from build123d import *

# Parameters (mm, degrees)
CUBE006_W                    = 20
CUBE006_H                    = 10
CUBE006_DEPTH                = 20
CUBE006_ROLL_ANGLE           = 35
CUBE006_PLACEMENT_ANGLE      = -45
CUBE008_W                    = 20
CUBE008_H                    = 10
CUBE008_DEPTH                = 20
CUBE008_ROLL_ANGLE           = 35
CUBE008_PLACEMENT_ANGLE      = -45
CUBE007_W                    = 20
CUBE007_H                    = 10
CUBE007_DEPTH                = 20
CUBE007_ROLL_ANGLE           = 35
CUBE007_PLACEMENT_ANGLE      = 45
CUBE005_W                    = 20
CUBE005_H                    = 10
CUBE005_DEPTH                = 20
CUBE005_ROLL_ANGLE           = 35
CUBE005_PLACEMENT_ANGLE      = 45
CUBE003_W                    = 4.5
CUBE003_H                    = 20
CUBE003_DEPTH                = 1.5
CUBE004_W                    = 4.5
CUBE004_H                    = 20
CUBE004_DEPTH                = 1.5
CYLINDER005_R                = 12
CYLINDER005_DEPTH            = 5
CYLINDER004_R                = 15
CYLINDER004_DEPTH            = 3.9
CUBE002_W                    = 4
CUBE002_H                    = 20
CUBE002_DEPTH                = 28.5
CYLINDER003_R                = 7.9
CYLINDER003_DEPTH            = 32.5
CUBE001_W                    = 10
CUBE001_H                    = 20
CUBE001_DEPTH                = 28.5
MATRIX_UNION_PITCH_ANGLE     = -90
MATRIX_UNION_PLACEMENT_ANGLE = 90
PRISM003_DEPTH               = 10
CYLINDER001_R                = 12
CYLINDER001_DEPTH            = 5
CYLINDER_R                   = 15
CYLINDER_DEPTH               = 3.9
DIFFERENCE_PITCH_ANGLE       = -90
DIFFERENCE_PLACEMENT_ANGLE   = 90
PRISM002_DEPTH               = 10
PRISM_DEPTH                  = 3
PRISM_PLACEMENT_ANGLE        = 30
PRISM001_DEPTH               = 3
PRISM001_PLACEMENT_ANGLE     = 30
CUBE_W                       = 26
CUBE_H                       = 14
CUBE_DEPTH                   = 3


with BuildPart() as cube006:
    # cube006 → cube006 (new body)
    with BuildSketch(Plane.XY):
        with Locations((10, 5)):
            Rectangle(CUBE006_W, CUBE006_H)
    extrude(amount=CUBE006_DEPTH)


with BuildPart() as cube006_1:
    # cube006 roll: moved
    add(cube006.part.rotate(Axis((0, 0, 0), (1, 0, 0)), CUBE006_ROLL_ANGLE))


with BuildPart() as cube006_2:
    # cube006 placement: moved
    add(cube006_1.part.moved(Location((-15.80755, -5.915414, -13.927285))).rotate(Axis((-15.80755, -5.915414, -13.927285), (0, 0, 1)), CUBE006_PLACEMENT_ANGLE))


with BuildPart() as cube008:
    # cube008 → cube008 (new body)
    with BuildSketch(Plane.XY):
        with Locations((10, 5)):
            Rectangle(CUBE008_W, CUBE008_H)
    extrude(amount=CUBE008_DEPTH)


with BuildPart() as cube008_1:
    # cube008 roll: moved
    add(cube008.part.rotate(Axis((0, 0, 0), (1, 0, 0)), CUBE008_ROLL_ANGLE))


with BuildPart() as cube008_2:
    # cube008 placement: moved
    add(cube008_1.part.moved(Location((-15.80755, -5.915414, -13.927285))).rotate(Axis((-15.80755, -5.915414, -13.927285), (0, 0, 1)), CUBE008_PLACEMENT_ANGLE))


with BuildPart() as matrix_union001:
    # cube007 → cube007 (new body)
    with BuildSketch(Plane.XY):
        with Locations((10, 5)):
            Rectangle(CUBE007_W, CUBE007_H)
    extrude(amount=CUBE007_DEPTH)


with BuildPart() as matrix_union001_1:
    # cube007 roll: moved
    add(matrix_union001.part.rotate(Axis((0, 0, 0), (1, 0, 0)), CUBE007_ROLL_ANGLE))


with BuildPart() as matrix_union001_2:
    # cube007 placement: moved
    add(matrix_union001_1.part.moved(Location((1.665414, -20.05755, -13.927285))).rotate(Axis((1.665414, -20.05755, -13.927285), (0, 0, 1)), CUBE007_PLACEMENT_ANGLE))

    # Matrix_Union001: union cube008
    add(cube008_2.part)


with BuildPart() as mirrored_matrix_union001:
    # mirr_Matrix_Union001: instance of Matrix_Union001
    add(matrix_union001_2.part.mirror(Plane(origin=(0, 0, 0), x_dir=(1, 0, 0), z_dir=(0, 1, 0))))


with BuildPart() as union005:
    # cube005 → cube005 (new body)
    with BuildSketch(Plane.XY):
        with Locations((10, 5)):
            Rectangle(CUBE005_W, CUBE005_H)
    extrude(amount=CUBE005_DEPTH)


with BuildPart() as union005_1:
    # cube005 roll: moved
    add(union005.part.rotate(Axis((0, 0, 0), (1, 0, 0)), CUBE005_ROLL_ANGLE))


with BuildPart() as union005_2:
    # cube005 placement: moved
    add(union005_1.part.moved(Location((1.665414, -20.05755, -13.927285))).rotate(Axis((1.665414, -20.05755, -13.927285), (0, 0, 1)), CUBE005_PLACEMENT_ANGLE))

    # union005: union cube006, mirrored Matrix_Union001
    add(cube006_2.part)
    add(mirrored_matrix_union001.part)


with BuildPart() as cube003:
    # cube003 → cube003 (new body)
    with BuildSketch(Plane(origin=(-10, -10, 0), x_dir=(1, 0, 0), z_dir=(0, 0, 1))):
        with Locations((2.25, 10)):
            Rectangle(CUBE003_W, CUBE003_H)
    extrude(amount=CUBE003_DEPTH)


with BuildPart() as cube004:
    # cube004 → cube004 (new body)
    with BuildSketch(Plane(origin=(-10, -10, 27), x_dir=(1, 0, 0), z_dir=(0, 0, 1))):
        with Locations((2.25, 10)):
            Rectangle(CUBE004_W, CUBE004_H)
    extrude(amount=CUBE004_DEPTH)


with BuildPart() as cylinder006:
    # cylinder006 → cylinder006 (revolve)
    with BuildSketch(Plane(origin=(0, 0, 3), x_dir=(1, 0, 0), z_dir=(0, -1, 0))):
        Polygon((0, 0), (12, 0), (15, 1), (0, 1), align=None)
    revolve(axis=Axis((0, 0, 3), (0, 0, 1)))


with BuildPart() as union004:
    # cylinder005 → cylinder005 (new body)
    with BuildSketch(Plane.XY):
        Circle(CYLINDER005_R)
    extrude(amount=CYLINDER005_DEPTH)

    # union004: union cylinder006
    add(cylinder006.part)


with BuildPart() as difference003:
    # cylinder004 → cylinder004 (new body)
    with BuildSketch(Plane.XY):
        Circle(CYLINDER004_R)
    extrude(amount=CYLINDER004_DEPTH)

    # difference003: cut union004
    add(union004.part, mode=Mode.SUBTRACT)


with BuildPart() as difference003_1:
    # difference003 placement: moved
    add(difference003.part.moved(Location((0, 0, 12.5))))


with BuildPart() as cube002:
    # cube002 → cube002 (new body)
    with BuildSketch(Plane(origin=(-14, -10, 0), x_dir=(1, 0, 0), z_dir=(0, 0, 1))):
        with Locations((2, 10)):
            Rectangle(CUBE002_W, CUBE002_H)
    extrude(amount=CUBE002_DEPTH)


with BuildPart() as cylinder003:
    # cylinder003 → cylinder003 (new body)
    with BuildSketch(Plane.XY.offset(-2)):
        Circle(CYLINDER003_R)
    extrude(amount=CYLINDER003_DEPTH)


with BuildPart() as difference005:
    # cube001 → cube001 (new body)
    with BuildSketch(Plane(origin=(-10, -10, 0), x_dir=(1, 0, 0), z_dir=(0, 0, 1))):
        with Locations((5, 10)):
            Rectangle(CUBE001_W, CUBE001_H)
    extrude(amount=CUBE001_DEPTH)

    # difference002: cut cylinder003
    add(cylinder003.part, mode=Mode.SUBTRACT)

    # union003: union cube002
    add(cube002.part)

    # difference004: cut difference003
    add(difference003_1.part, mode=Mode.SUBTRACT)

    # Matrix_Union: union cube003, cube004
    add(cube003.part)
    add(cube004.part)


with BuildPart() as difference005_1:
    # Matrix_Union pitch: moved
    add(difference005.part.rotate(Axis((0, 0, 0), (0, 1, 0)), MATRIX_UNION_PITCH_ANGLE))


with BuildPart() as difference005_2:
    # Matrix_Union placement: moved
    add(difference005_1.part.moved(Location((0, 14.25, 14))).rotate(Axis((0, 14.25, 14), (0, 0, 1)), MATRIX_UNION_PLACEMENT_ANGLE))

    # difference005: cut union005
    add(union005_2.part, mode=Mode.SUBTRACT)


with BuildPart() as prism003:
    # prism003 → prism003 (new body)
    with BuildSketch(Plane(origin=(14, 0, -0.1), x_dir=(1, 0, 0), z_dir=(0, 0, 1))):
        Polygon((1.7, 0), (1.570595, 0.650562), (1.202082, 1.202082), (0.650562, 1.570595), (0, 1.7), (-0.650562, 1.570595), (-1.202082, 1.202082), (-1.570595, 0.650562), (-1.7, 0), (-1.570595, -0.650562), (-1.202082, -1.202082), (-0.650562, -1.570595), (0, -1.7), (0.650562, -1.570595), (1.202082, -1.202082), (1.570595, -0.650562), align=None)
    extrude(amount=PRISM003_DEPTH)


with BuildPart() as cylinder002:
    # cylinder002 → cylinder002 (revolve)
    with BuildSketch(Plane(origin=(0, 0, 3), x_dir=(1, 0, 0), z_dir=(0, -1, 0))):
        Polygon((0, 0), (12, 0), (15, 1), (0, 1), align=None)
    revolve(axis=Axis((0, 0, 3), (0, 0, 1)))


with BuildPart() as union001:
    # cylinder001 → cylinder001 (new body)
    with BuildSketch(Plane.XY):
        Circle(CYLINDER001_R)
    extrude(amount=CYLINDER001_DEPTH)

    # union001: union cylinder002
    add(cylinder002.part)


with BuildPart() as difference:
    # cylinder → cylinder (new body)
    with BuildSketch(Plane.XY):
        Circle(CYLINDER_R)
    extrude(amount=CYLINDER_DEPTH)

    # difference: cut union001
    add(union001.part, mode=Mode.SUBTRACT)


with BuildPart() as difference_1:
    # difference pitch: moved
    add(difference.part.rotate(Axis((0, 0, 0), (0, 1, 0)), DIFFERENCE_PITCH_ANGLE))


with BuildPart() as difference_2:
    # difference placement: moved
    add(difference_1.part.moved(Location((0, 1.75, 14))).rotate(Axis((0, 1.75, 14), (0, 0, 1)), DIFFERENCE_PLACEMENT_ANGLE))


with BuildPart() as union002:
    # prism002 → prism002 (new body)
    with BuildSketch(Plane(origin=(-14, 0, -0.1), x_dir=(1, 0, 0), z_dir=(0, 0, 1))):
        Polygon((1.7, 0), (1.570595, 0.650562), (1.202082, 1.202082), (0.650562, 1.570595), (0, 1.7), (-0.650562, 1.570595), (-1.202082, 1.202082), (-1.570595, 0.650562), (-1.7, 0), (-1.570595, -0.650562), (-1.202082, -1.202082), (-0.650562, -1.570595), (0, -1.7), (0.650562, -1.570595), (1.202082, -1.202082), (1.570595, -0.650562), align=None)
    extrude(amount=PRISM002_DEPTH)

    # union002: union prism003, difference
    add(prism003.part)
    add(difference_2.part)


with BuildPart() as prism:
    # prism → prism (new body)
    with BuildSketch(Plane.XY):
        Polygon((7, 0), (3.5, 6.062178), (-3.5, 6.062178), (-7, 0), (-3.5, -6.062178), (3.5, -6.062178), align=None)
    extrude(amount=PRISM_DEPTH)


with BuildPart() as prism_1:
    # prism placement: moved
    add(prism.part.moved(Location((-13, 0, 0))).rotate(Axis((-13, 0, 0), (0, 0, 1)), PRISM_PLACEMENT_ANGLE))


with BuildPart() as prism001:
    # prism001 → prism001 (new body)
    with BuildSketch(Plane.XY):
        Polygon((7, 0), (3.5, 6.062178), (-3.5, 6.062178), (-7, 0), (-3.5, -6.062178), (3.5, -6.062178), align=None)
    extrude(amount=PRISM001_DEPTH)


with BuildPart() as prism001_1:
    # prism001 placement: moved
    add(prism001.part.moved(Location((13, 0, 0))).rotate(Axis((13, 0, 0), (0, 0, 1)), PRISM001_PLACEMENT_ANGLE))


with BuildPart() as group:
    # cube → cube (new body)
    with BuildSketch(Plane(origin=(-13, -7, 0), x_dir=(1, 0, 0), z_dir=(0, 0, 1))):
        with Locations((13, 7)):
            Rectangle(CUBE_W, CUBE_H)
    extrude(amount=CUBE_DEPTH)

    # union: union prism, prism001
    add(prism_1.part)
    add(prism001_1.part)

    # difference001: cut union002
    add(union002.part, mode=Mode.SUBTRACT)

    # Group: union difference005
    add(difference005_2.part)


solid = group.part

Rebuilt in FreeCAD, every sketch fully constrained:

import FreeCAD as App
import Part
import Sketcher
from FreeCAD import Vector
Q = App.Units.Quantity

doc = App.newDocument("Part")
body = doc.addObject("PartDesign::Body", "Body")

sketch1 = doc.addObject("Sketcher::SketchObject", "Sketch")
body.addObject(sketch1)
sketch1.AttachmentSupport = (doc.XY_Plane, [""])
sketch1.MapMode = "FlatFace"
sketch1.addGeometry(Part.LineSegment(Vector(0, 10, 0), Vector(0, 0, 0)), False)
sketch1.addGeometry(Part.LineSegment(Vector(0, 0, 0), Vector(20, 0, 0)), False)
sketch1.addGeometry(Part.LineSegment(Vector(20, 0, 0), Vector(20, 10, 0)), False)
sketch1.addGeometry(Part.LineSegment(Vector(20, 10, 0), Vector(0, 10, 0)), False)
sketch1.addConstraint(Sketcher.Constraint("Coincident", 0, 2, 1, 1))
sketch1.addConstraint(Sketcher.Constraint("Coincident", 1, 2, 2, 1))
sketch1.addConstraint(Sketcher.Constraint("Coincident", 2, 2, 3, 1))
sketch1.addConstraint(Sketcher.Constraint("Coincident", 3, 2, 0, 1))
sketch1.addConstraint(Sketcher.Constraint("Vertical", 0))
sketch1.addConstraint(Sketcher.Constraint("Horizontal", 1))
sketch1.addConstraint(Sketcher.Constraint("Vertical", 2))
sketch1.addConstraint(Sketcher.Constraint("Horizontal", 3))
sketch1.addConstraint(Sketcher.Constraint("Coincident", 0, 2, -1, 1))
sketch1.addConstraint(Sketcher.Constraint("DistanceX", 1, 1, 1, 2, Q("20 mm")))
sketch1.addConstraint(Sketcher.Constraint("DistanceY", 0, 2, 0, 1, Q("10 mm")))
pad1 = doc.addObject("PartDesign::Pad", "Pad")
body.addObject(pad1)
pad1.Profile = sketch1
pad1.Length = 20
body2 = doc.addObject("PartDesign::Body", "Body001")
doc.recompute()

body.Placement = App.Placement(Vector(0, 0, 0), App.Rotation(Vector(1, 0, 0), 35))
boolean = doc.addObject("PartDesign::Boolean", "Boolean")
body2.addObject(boolean)
boolean.Type = "Fuse"
boolean.addObjects([body])
body3 = doc.addObject("PartDesign::Body", "Body002")
doc.recompute()

body2.Placement = App.Placement(Vector(-15.80755, -5.915414, -13.927285), App.Rotation(Vector(0, 0, 1), 315))
boolean2 = doc.addObject("PartDesign::Boolean", "Boolean001")
body3.addObject(boolean2)
boolean2.Type = "Fuse"
boolean2.addObjects([body2])
body4 = doc.addObject("PartDesign::Body", "Body003")

sketch2 = doc.addObject("Sketcher::SketchObject", "Sketch001")
body4.addObject(sketch2)
sketch2.AttachmentSupport = (doc.getObject("XY_Plane003"), [""])
sketch2.MapMode = "FlatFace"
sketch2.addGeometry(Part.LineSegment(Vector(0, 10, 0), Vector(0, 0, 0)), False)
sketch2.addGeometry(Part.LineSegment(Vector(0, 0, 0), Vector(20, 0, 0)), False)
sketch2.addGeometry(Part.LineSegment(Vector(20, 0, 0), Vector(20, 10, 0)), False)
sketch2.addGeometry(Part.LineSegment(Vector(20, 10, 0), Vector(0, 10, 0)), False)
sketch2.addConstraint(Sketcher.Constraint("Coincident", 0, 2, 1, 1))
sketch2.addConstraint(Sketcher.Constraint("Coincident", 1, 2, 2, 1))
sketch2.addConstraint(Sketcher.Constraint("Coincident", 2, 2, 3, 1))
sketch2.addConstraint(Sketcher.Constraint("Coincident", 3, 2, 0, 1))
sketch2.addConstraint(Sketcher.Constraint("Vertical", 0))
sketch2.addConstraint(Sketcher.Constraint("Horizontal", 1))
sketch2.addConstraint(Sketcher.Constraint("Vertical", 2))
sketch2.addConstraint(Sketcher.Constraint("Horizontal", 3))
sketch2.addConstraint(Sketcher.Constraint("Coincident", 0, 2, -1, 1))
sketch2.addConstraint(Sketcher.Constraint("DistanceX", 1, 1, 1, 2, Q("20 mm")))
sketch2.addConstraint(Sketcher.Constraint("DistanceY", 0, 2, 0, 1, Q("10 mm")))
pad2 = doc.addObject("PartDesign::Pad", "Pad001")
body4.addObject(pad2)
pad2.Profile = sketch2
pad2.Length = 20
body5 = doc.addObject("PartDesign::Body", "Body004")
doc.recompute()

body4.Placement = App.Placement(Vector(0, 0, 0), App.Rotation(Vector(1, 0, 0), 35))
boolean3 = doc.addObject("PartDesign::Boolean", "Boolean002")
body5.addObject(boolean3)
boolean3.Type = "Fuse"
boolean3.addObjects([body4])
body6 = doc.addObject("PartDesign::Body", "Body005")
doc.recompute()

body5.Placement = App.Placement(Vector(-15.80755, -5.915414, -13.927285), App.Rotation(Vector(0, 0, 1), 315))
boolean4 = doc.addObject("PartDesign::Boolean", "Boolean003")
body6.addObject(boolean4)
boolean4.Type = "Fuse"
boolean4.addObjects([body5])
body7 = doc.addObject("PartDesign::Body", "Body006")

sketch3 = doc.addObject("Sketcher::SketchObject", "Sketch002")
body7.addObject(sketch3)
sketch3.AttachmentSupport = (doc.getObject("XY_Plane006"), [""])
sketch3.MapMode = "FlatFace"
sketch3.addGeometry(Part.LineSegment(Vector(0, 10, 0), Vector(0, 0, 0)), False)
sketch3.addGeometry(Part.LineSegment(Vector(0, 0, 0), Vector(20, 0, 0)), False)
sketch3.addGeometry(Part.LineSegment(Vector(20, 0, 0), Vector(20, 10, 0)), False)
sketch3.addGeometry(Part.LineSegment(Vector(20, 10, 0), Vector(0, 10, 0)), False)
sketch3.addConstraint(Sketcher.Constraint("Coincident", 0, 2, 1, 1))
sketch3.addConstraint(Sketcher.Constraint("Coincident", 1, 2, 2, 1))
sketch3.addConstraint(Sketcher.Constraint("Coincident", 2, 2, 3, 1))
sketch3.addConstraint(Sketcher.Constraint("Coincident", 3, 2, 0, 1))
sketch3.addConstraint(Sketcher.Constraint("Vertical", 0))
sketch3.addConstraint(Sketcher.Constraint("Horizontal", 1))
sketch3.addConstraint(Sketcher.Constraint("Vertical", 2))
sketch3.addConstraint(Sketcher.Constraint("Horizontal", 3))
sketch3.addConstraint(Sketcher.Constraint("Coincident", 0, 2, -1, 1))
sketch3.addConstraint(Sketcher.Constraint("DistanceX", 1, 1, 1, 2, Q("20 mm")))
sketch3.addConstraint(Sketcher.Constraint("DistanceY", 0, 2, 0, 1, Q("10 mm")))
pad3 = doc.addObject("PartDesign::Pad", "Pad002")
body7.addObject(pad3)
pad3.Profile = sketch3
pad3.Length = 20
body8 = doc.addObject("PartDesign::Body", "Body007")
doc.recompute()

body7.Placement = App.Placement(Vector(0, 0, 0), App.Rotation(Vector(1, 0, 0), 35))
boolean5 = doc.addObject("PartDesign::Boolean", "Boolean004")
body8.addObject(boolean5)
boolean5.Type = "Fuse"
boolean5.addObjects([body7])
body9 = doc.addObject("PartDesign::Body", "Body008")
doc.recompute()

body8.Placement = App.Placement(Vector(1.665414, -20.05755, -13.927285), App.Rotation(Vector(0, 0, 1), 45))
boolean6 = doc.addObject("PartDesign::Boolean", "Boolean005")
body9.addObject(boolean6)
boolean6.Type = "Fuse"
boolean6.addObjects([body8])
doc.recompute()

boolean7 = doc.addObject("PartDesign::Boolean", "Boolean006")
body9.addObject(boolean7)
boolean7.Type = "Fuse"
boolean7.addObjects([body6])
body10 = doc.addObject("PartDesign::Body", "Body009")
doc.recompute()

mirroring = doc.addObject("Part::Mirroring", "Mirroring")
mirroring.Source = body9
mirroring.Base = Vector(0, 0, 0)
mirroring.Normal = Vector(0, 1, 0)
body10.BaseFeature = mirroring
doc.recompute()
body11 = doc.addObject("PartDesign::Body", "Body010")

sketch4 = doc.addObject("Sketcher::SketchObject", "Sketch003")
body11.addObject(sketch4)
sketch4.AttachmentSupport = (doc.getObject("XY_Plane010"), [""])
sketch4.MapMode = "FlatFace"
sketch4.addGeometry(Part.LineSegment(Vector(0, 10, 0), Vector(0, 0, 0)), False)
sketch4.addGeometry(Part.LineSegment(Vector(0, 0, 0), Vector(20, 0, 0)), False)
sketch4.addGeometry(Part.LineSegment(Vector(20, 0, 0), Vector(20, 10, 0)), False)
sketch4.addGeometry(Part.LineSegment(Vector(20, 10, 0), Vector(0, 10, 0)), False)
sketch4.addConstraint(Sketcher.Constraint("Coincident", 0, 2, 1, 1))
sketch4.addConstraint(Sketcher.Constraint("Coincident", 1, 2, 2, 1))
sketch4.addConstraint(Sketcher.Constraint("Coincident", 2, 2, 3, 1))
sketch4.addConstraint(Sketcher.Constraint("Coincident", 3, 2, 0, 1))
sketch4.addConstraint(Sketcher.Constraint("Vertical", 0))
sketch4.addConstraint(Sketcher.Constraint("Horizontal", 1))
sketch4.addConstraint(Sketcher.Constraint("Vertical", 2))
sketch4.addConstraint(Sketcher.Constraint("Horizontal", 3))
sketch4.addConstraint(Sketcher.Constraint("Coincident", 0, 2, -1, 1))
sketch4.addConstraint(Sketcher.Constraint("DistanceX", 1, 1, 1, 2, Q("20 mm")))
sketch4.addConstraint(Sketcher.Constraint("DistanceY", 0, 2, 0, 1, Q("10 mm")))
pad4 = doc.addObject("PartDesign::Pad", "Pad003")
body11.addObject(pad4)
pad4.Profile = sketch4
pad4.Length = 20
body12 = doc.addObject("PartDesign::Body", "Body011")
doc.recompute()

body11.Placement = App.Placement(Vector(0, 0, 0), App.Rotation(Vector(1, 0, 0), 35))
boolean8 = doc.addObject("PartDesign::Boolean", "Boolean007")
body12.addObject(boolean8)
boolean8.Type = "Fuse"
boolean8.addObjects([body11])
body13 = doc.addObject("PartDesign::Body", "Body012")
body13.AllowCompound = True
doc.recompute()

body12.Placement = App.Placement(Vector(1.665414, -20.05755, -13.927285), App.Rotation(Vector(0, 0, 1), 45))
boolean9 = doc.addObject("PartDesign::Boolean", "Boolean008")
body13.addObject(boolean9)
boolean9.Type = "Fuse"
boolean9.addObjects([body12])
doc.recompute()

boolean10 = doc.addObject("PartDesign::Boolean", "Boolean009")
body13.addObject(boolean10)
boolean10.Type = "Fuse"
boolean10.addObjects([body3])
doc.recompute()

boolean11 = doc.addObject("PartDesign::Boolean", "Boolean010")
body13.addObject(boolean11)
boolean11.Type = "Fuse"
boolean11.addObjects([body10])
body14 = doc.addObject("PartDesign::Body", "Body013")

sketch5 = doc.addObject("Sketcher::SketchObject", "Sketch004")
body14.addObject(sketch5)
sketch5.AttachmentSupport = (doc.getObject("XY_Plane013"), [""])
sketch5.MapMode = "FlatFace"
sketch5.addGeometry(Part.LineSegment(Vector(-10, 10, 0), Vector(-10, -10, 0)), False)
sketch5.addGeometry(Part.LineSegment(Vector(-10, -10, 0), Vector(-5.5, -10, 0)), False)
sketch5.addGeometry(Part.LineSegment(Vector(-5.5, -10, 0), Vector(-5.5, 10, 0)), False)
sketch5.addGeometry(Part.LineSegment(Vector(-5.5, 10, 0), Vector(-10, 10, 0)), False)
sketch5.addConstraint(Sketcher.Constraint("Coincident", 0, 2, 1, 1))
sketch5.addConstraint(Sketcher.Constraint("Coincident", 1, 2, 2, 1))
sketch5.addConstraint(Sketcher.Constraint("Coincident", 2, 2, 3, 1))
sketch5.addConstraint(Sketcher.Constraint("Coincident", 3, 2, 0, 1))
sketch5.addConstraint(Sketcher.Constraint("Vertical", 0))
sketch5.addConstraint(Sketcher.Constraint("Horizontal", 1))
sketch5.addConstraint(Sketcher.Constraint("Vertical", 2))
sketch5.addConstraint(Sketcher.Constraint("Horizontal", 3))
sketch5.addConstraint(Sketcher.Constraint("DistanceY", 0, 2, 0, 1, Q("20 mm")))
sketch5.addConstraint(Sketcher.Constraint("DistanceX", 1, 1, 1, 2, Q("4.5 mm")))
sketch5.addConstraint(Sketcher.Constraint("DistanceX", 0, 2, -1, 1, Q("10 mm")))
sketch5.addConstraint(Sketcher.Constraint("DistanceY", 0, 2, -1, 1, Q("10 mm")))
pad5 = doc.addObject("PartDesign::Pad", "Pad004")
body14.addObject(pad5)
pad5.Profile = sketch5
pad5.Length = 1.5
body15 = doc.addObject("PartDesign::Body", "Body014")

sketch6 = doc.addObject("Sketcher::SketchObject", "Sketch005")
body15.addObject(sketch6)
sketch6.AttachmentSupport = (doc.getObject("XY_Plane014"), [""])
sketch6.MapMode = "FlatFace"
sketch6.AttachmentOffset = App.Placement(Vector(0, 0, 27), App.Rotation())
sketch6.addGeometry(Part.LineSegment(Vector(-10, 10, 0), Vector(-10, -10, 0)), False)
sketch6.addGeometry(Part.LineSegment(Vector(-10, -10, 0), Vector(-5.5, -10, 0)), False)
sketch6.addGeometry(Part.LineSegment(Vector(-5.5, -10, 0), Vector(-5.5, 10, 0)), False)
sketch6.addGeometry(Part.LineSegment(Vector(-5.5, 10, 0), Vector(-10, 10, 0)), False)
sketch6.addConstraint(Sketcher.Constraint("Coincident", 0, 2, 1, 1))
sketch6.addConstraint(Sketcher.Constraint("Coincident", 1, 2, 2, 1))
sketch6.addConstraint(Sketcher.Constraint("Coincident", 2, 2, 3, 1))
sketch6.addConstraint(Sketcher.Constraint("Coincident", 3, 2, 0, 1))
sketch6.addConstraint(Sketcher.Constraint("Vertical", 0))
sketch6.addConstraint(Sketcher.Constraint("Horizontal", 1))
sketch6.addConstraint(Sketcher.Constraint("Vertical", 2))
sketch6.addConstraint(Sketcher.Constraint("Horizontal", 3))
sketch6.addConstraint(Sketcher.Constraint("DistanceY", 0, 2, 0, 1, Q("20 mm")))
sketch6.addConstraint(Sketcher.Constraint("DistanceX", 1, 1, 1, 2, Q("4.5 mm")))
sketch6.addConstraint(Sketcher.Constraint("DistanceX", 0, 2, -1, 1, Q("10 mm")))
sketch6.addConstraint(Sketcher.Constraint("DistanceY", 0, 2, -1, 1, Q("10 mm")))
pad6 = doc.addObject("PartDesign::Pad", "Pad005")
body15.addObject(pad6)
pad6.Profile = sketch6
pad6.Length = 1.5
body16 = doc.addObject("PartDesign::Body", "Body015")

sketch7 = doc.addObject("Sketcher::SketchObject", "Sketch006")
body16.addObject(sketch7)
sketch7.AttachmentSupport = (doc.getObject("XZ_Plane015"), [""])
sketch7.MapMode = "FlatFace"
sketch7.addGeometry(Part.LineSegment(Vector(0, 3, 0), Vector(12, 3, 0)), False)
sketch7.addGeometry(Part.LineSegment(Vector(12, 3, 0), Vector(15, 4, 0)), False)
sketch7.addGeometry(Part.LineSegment(Vector(15, 4, 0), Vector(0, 4, 0)), False)
sketch7.addGeometry(Part.LineSegment(Vector(0, 4, 0), Vector(0, 3, 0)), False)
sketch7.addConstraint(Sketcher.Constraint("Coincident", 0, 2, 1, 1))
sketch7.addConstraint(Sketcher.Constraint("Coincident", 1, 2, 2, 1))
sketch7.addConstraint(Sketcher.Constraint("Coincident", 2, 2, 3, 1))
sketch7.addConstraint(Sketcher.Constraint("Coincident", 3, 2, 0, 1))
sketch7.addConstraint(Sketcher.Constraint("Horizontal", 0))
sketch7.addConstraint(Sketcher.Constraint("Horizontal", 2))
sketch7.addConstraint(Sketcher.Constraint("Vertical", 3))
sketch7.addConstraint(Sketcher.Constraint("PointOnObject", 2, 2, -2))
sketch7.addConstraint(Sketcher.Constraint("DistanceX", 0, 1, 0, 2, Q("12 mm")))
sketch7.addConstraint(Sketcher.Constraint("DistanceX", 2, 2, 2, 1, Q("15 mm")))
sketch7.addConstraint(Sketcher.Constraint("DistanceY", 3, 2, 3, 1, Q("1 mm")))
sketch7.addConstraint(Sketcher.Constraint("DistanceY", -1, 1, 0, 2, Q("3 mm")))
revolution = doc.addObject("PartDesign::Revolution", "Revolution")
body16.addObject(revolution)
revolution.Profile = sketch7
revolution.ReferenceAxis = (sketch7, ["V_Axis"])
revolution.Angle = 360
body17 = doc.addObject("PartDesign::Body", "Body016")

sketch8 = doc.addObject("Sketcher::SketchObject", "Sketch007")
body17.addObject(sketch8)
sketch8.AttachmentSupport = (doc.getObject("XY_Plane016"), [""])
sketch8.MapMode = "FlatFace"
sketch8.addGeometry(Part.Circle(Vector(0, 0, 0), Vector(0, 0, 1), 12), False)
sketch8.addConstraint(Sketcher.Constraint("Coincident", 0, 3, -1, 1))
sketch8.addConstraint(Sketcher.Constraint("Diameter", 0, Q("24 mm")))
pad7 = doc.addObject("PartDesign::Pad", "Pad006")
body17.addObject(pad7)
pad7.Profile = sketch8
pad7.Length = 5
doc.recompute()

boolean12 = doc.addObject("PartDesign::Boolean", "Boolean011")
body17.addObject(boolean12)
boolean12.Type = "Fuse"
boolean12.addObjects([body16])
body18 = doc.addObject("PartDesign::Body", "Body017")

sketch9 = doc.addObject("Sketcher::SketchObject", "Sketch008")
body18.addObject(sketch9)
sketch9.AttachmentSupport = (doc.getObject("XY_Plane017"), [""])
sketch9.MapMode = "FlatFace"
sketch9.addGeometry(Part.Circle(Vector(0, 0, 0), Vector(0, 0, 1), 15), False)
sketch9.addConstraint(Sketcher.Constraint("Coincident", 0, 3, -1, 1))
sketch9.addConstraint(Sketcher.Constraint("Diameter", 0, Q("30 mm")))
pad8 = doc.addObject("PartDesign::Pad", "Pad007")
body18.addObject(pad8)
pad8.Profile = sketch9
pad8.Length = 3.9
doc.recompute()

boolean13 = doc.addObject("PartDesign::Boolean", "Boolean012")
body18.addObject(boolean13)
boolean13.Type = "Cut"
boolean13.addObjects([body17])
body19 = doc.addObject("PartDesign::Body", "Body018")
doc.recompute()

body18.Placement = App.Placement(Vector(0, 0, 12.5), App.Rotation(Vector(0, 0, 1), 0))
boolean14 = doc.addObject("PartDesign::Boolean", "Boolean013")
body19.addObject(boolean14)
boolean14.Type = "Fuse"
boolean14.addObjects([body18])
body20 = doc.addObject("PartDesign::Body", "Body019")

sketch10 = doc.addObject("Sketcher::SketchObject", "Sketch009")
body20.addObject(sketch10)
sketch10.AttachmentSupport = (doc.getObject("XY_Plane019"), [""])
sketch10.MapMode = "FlatFace"
sketch10.addGeometry(Part.LineSegment(Vector(-14, 10, 0), Vector(-14, -10, 0)), False)
sketch10.addGeometry(Part.LineSegment(Vector(-14, -10, 0), Vector(-10, -10, 0)), False)
sketch10.addGeometry(Part.LineSegment(Vector(-10, -10, 0), Vector(-10, 10, 0)), False)
sketch10.addGeometry(Part.LineSegment(Vector(-10, 10, 0), Vector(-14, 10, 0)), False)
sketch10.addConstraint(Sketcher.Constraint("Coincident", 0, 2, 1, 1))
sketch10.addConstraint(Sketcher.Constraint("Coincident", 1, 2, 2, 1))
sketch10.addConstraint(Sketcher.Constraint("Coincident", 2, 2, 3, 1))
sketch10.addConstraint(Sketcher.Constraint("Coincident", 3, 2, 0, 1))
sketch10.addConstraint(Sketcher.Constraint("Vertical", 0))
sketch10.addConstraint(Sketcher.Constraint("Horizontal", 1))
sketch10.addConstraint(Sketcher.Constraint("Vertical", 2))
sketch10.addConstraint(Sketcher.Constraint("Horizontal", 3))
sketch10.addConstraint(Sketcher.Constraint("DistanceX", 1, 1, 1, 2, Q("4 mm")))
sketch10.addConstraint(Sketcher.Constraint("DistanceY", 0, 2, 0, 1, Q("20 mm")))
sketch10.addConstraint(Sketcher.Constraint("DistanceX", 0, 2, -1, 1, Q("14 mm")))
sketch10.addConstraint(Sketcher.Constraint("DistanceY", 0, 2, -1, 1, Q("10 mm")))
pad9 = doc.addObject("PartDesign::Pad", "Pad008")
body20.addObject(pad9)
pad9.Profile = sketch10
pad9.Length = 28.5
body21 = doc.addObject("PartDesign::Body", "Body020")

sketch11 = doc.addObject("Sketcher::SketchObject", "Sketch010")
body21.addObject(sketch11)
sketch11.AttachmentSupport = (doc.getObject("XY_Plane020"), [""])
sketch11.MapMode = "FlatFace"
sketch11.AttachmentOffset = App.Placement(Vector(0, 0, -2), App.Rotation())
sketch11.addGeometry(Part.Circle(Vector(0, 0, 0), Vector(0, 0, 1), 8), False)
sketch11.addConstraint(Sketcher.Constraint("Coincident", 0, 3, -1, 1))
sketch11.addConstraint(Sketcher.Constraint("Diameter", 0, Q("15.8 mm")))
pad10 = doc.addObject("PartDesign::Pad", "Pad009")
body21.addObject(pad10)
pad10.Profile = sketch11
pad10.Length = 32.5
body22 = doc.addObject("PartDesign::Body", "Body021")

sketch12 = doc.addObject("Sketcher::SketchObject", "Sketch011")
body22.addObject(sketch12)
sketch12.AttachmentSupport = (doc.getObject("XY_Plane021"), [""])
sketch12.MapMode = "FlatFace"
sketch12.addGeometry(Part.LineSegment(Vector(-10, 10, 0), Vector(-10, -10, 0)), False)
sketch12.addGeometry(Part.LineSegment(Vector(-10, -10, 0), Vector(0, -10, 0)), False)
sketch12.addGeometry(Part.LineSegment(Vector(0, -10, 0), Vector(0, 10, 0)), False)
sketch12.addGeometry(Part.LineSegment(Vector(0, 10, 0), Vector(-10, 10, 0)), False)
sketch12.addConstraint(Sketcher.Constraint("Coincident", 0, 2, 1, 1))
sketch12.addConstraint(Sketcher.Constraint("Coincident", 1, 2, 2, 1))
sketch12.addConstraint(Sketcher.Constraint("Coincident", 2, 2, 3, 1))
sketch12.addConstraint(Sketcher.Constraint("Coincident", 3, 2, 0, 1))
sketch12.addConstraint(Sketcher.Constraint("Vertical", 0))
sketch12.addConstraint(Sketcher.Constraint("Horizontal", 1))
sketch12.addConstraint(Sketcher.Constraint("Vertical", 2))
sketch12.addConstraint(Sketcher.Constraint("Horizontal", 3))
sketch12.addConstraint(Sketcher.Constraint("Symmetric", 1, 2, 2, 2, -1, 1))
sketch12.addConstraint(Sketcher.Constraint("DistanceX", 1, 1, 1, 2, Q("10 mm")))
sketch12.addConstraint(Sketcher.Constraint("DistanceY", 0, 2, 0, 1, Q("20 mm")))
pad11 = doc.addObject("PartDesign::Pad", "Pad010")
body22.addObject(pad11)
pad11.Profile = sketch12
pad11.Length = 28.5
doc.recompute()

boolean15 = doc.addObject("PartDesign::Boolean", "Boolean014")
body22.addObject(boolean15)
boolean15.Type = "Cut"
boolean15.addObjects([body21])
doc.recompute()

boolean16 = doc.addObject("PartDesign::Boolean", "Boolean015")
body22.addObject(boolean16)
boolean16.Type = "Fuse"
boolean16.addObjects([body20])
doc.recompute()

boolean17 = doc.addObject("PartDesign::Boolean", "Boolean016")
body22.addObject(boolean17)
boolean17.Type = "Cut"
boolean17.addObjects([body19])
doc.recompute()

boolean18 = doc.addObject("PartDesign::Boolean", "Boolean017")
body22.addObject(boolean18)
boolean18.Type = "Fuse"
boolean18.addObjects([body14])
doc.recompute()

boolean19 = doc.addObject("PartDesign::Boolean", "Boolean018")
body22.addObject(boolean19)
boolean19.Type = "Fuse"
boolean19.addObjects([body15])
body23 = doc.addObject("PartDesign::Body", "Body022")
doc.recompute()

body22.Placement = App.Placement(Vector(0, 0, 0), App.Rotation(Vector(0, 1, 0), 270))
boolean20 = doc.addObject("PartDesign::Boolean", "Boolean019")
body23.addObject(boolean20)
boolean20.Type = "Fuse"
boolean20.addObjects([body22])
body24 = doc.addObject("PartDesign::Body", "Body023")
doc.recompute()

body23.Placement = App.Placement(Vector(0, 14.25, 14), App.Rotation(Vector(0, 0, 1), 90))
boolean21 = doc.addObject("PartDesign::Boolean", "Boolean020")
body24.addObject(boolean21)
boolean21.Type = "Fuse"
boolean21.addObjects([body23])
doc.recompute()

boolean22 = doc.addObject("PartDesign::Boolean", "Boolean021")
body24.addObject(boolean22)
boolean22.Type = "Cut"
boolean22.addObjects([body13])
body25 = doc.addObject("PartDesign::Body", "Body024")

sketch13 = doc.addObject("Sketcher::SketchObject", "Sketch012")
body25.addObject(sketch13)
sketch13.AttachmentSupport = (doc.getObject("XY_Plane024"), [""])
sketch13.MapMode = "FlatFace"
sketch13.AttachmentOffset = App.Placement(Vector(0, 0, -0.1), App.Rotation())
sketch13.addGeometry(Part.LineSegment(Vector(15.7, 0, 0), Vector(15.6, 0.7, 0)), False)
sketch13.addGeometry(Part.LineSegment(Vector(15.6, 0.7, 0), Vector(15.2, 1.2, 0)), False)
sketch13.addGeometry(Part.LineSegment(Vector(15.2, 1.2, 0), Vector(14.7, 1.6, 0)), False)
sketch13.addGeometry(Part.LineSegment(Vector(14.7, 1.6, 0), Vector(14, 1.7, 0)), False)
sketch13.addGeometry(Part.LineSegment(Vector(14, 1.7, 0), Vector(13.3, 1.6, 0)), False)
sketch13.addGeometry(Part.LineSegment(Vector(13.3, 1.6, 0), Vector(12.8, 1.2, 0)), False)
sketch13.addGeometry(Part.LineSegment(Vector(12.8, 1.2, 0), Vector(12.4, 0.7, 0)), False)
sketch13.addGeometry(Part.LineSegment(Vector(12.4, 0.7, 0), Vector(12.3, 0, 0)), False)
sketch13.addGeometry(Part.LineSegment(Vector(12.3, 0, 0), Vector(12.4, -0.7, 0)), False)
sketch13.addGeometry(Part.LineSegment(Vector(12.4, -0.7, 0), Vector(12.8, -1.2, 0)), False)
sketch13.addGeometry(Part.LineSegment(Vector(12.8, -1.2, 0), Vector(13.3, -1.6, 0)), False)
sketch13.addGeometry(Part.LineSegment(Vector(13.3, -1.6, 0), Vector(14, -1.7, 0)), False)
sketch13.addGeometry(Part.LineSegment(Vector(14, -1.7, 0), Vector(14.7, -1.6, 0)), False)
sketch13.addGeometry(Part.LineSegment(Vector(14.7, -1.6, 0), Vector(15.2, -1.2, 0)), False)
sketch13.addGeometry(Part.LineSegment(Vector(15.2, -1.2, 0), Vector(15.6, -0.7, 0)), False)
sketch13.addGeometry(Part.LineSegment(Vector(15.6, -0.7, 0), Vector(15.7, 0, 0)), False)
sketch13.addConstraint(Sketcher.Constraint("Coincident", 0, 2, 1, 1))
sketch13.addConstraint(Sketcher.Constraint("Coincident", 1, 2, 2, 1))
sketch13.addConstraint(Sketcher.Constraint("Coincident", 2, 2, 3, 1))
sketch13.addConstraint(Sketcher.Constraint("Coincident", 3, 2, 4, 1))
sketch13.addConstraint(Sketcher.Constraint("Coincident", 4, 2, 5, 1))
sketch13.addConstraint(Sketcher.Constraint("Coincident", 5, 2, 6, 1))
sketch13.addConstraint(Sketcher.Constraint("Coincident", 6, 2, 7, 1))
sketch13.addConstraint(Sketcher.Constraint("Coincident", 7, 2, 8, 1))
sketch13.addConstraint(Sketcher.Constraint("Coincident", 8, 2, 9, 1))
sketch13.addConstraint(Sketcher.Constraint("Coincident", 9, 2, 10, 1))
sketch13.addConstraint(Sketcher.Constraint("Coincident", 10, 2, 11, 1))
sketch13.addConstraint(Sketcher.Constraint("Coincident", 11, 2, 12, 1))
sketch13.addConstraint(Sketcher.Constraint("Coincident", 12, 2, 13, 1))
sketch13.addConstraint(Sketcher.Constraint("Coincident", 13, 2, 14, 1))
sketch13.addConstraint(Sketcher.Constraint("Coincident", 14, 2, 15, 1))
sketch13.addConstraint(Sketcher.Constraint("Coincident", 15, 2, 0, 1))
sketch13.addConstraint(Sketcher.Constraint("Symmetric", 6, 2, 8, 2, -1))
sketch13.addConstraint(Sketcher.Constraint("Symmetric", 5, 2, 9, 2, -1))
sketch13.addConstraint(Sketcher.Constraint("Symmetric", 4, 2, 10, 2, -1))
sketch13.addConstraint(Sketcher.Constraint("Symmetric", 3, 2, 11, 2, -1))
sketch13.addConstraint(Sketcher.Constraint("Symmetric", 2, 2, 12, 2, -1))
sketch13.addConstraint(Sketcher.Constraint("Symmetric", 1, 2, 13, 2, -1))
sketch13.addConstraint(Sketcher.Constraint("Symmetric", 0, 2, 14, 2, -1))
sketch13.addConstraint(Sketcher.Constraint("PointOnObject", 7, 2, -1))
sketch13.addConstraint(Sketcher.Constraint("PointOnObject", 15, 2, -1))
sketch13.addConstraint(Sketcher.Constraint("Perpendicular", 0, 4))
sketch13.addConstraint(Sketcher.Constraint("Perpendicular", 1, 5))
sketch13.addConstraint(Sketcher.Constraint("Perpendicular", 2, 6))
sketch13.addConstraint(Sketcher.Constraint("Perpendicular", 3, 7))
sketch13.addConstraint(Sketcher.Constraint("Perpendicular", 4, 8))
sketch13.addConstraint(Sketcher.Constraint("Perpendicular", 5, 9))
sketch13.addConstraint(Sketcher.Constraint("Horizontal", 2, 2, 4, 2))
sketch13.addConstraint(Sketcher.Constraint("Horizontal", 1, 2, 5, 2))
sketch13.addConstraint(Sketcher.Constraint("Horizontal", 0, 2, 6, 2))
sketch13.addConstraint(Sketcher.Constraint("Equal", 0, 1))
sketch13.addConstraint(Sketcher.Constraint("Equal", 1, 2))
sketch13.addConstraint(Sketcher.Constraint("Equal", 2, 3))
sketch13.addConstraint(Sketcher.Constraint("DistanceX", -1, 1, 3, 2, Q("14 mm")))
sketch13.addConstraint(Sketcher.Constraint("DistanceY", -1, 1, 3, 2, Q("1.7 mm")))
sketch13.addConstraint(Sketcher.Constraint("Angle", 0, Q("101.250015 deg")))
sketch13.addConstraint(Sketcher.Constraint("DistanceY", -1, 1, 0, 2, Q("0.650562 mm")))
pad12 = doc.addObject("PartDesign::Pad", "Pad011")
body25.addObject(pad12)
pad12.Profile = sketch13
pad12.Length = 10
body26 = doc.addObject("PartDesign::Body", "Body025")

sketch14 = doc.addObject("Sketcher::SketchObject", "Sketch013")
body26.addObject(sketch14)
sketch14.AttachmentSupport = (doc.getObject("XZ_Plane025"), [""])
sketch14.MapMode = "FlatFace"
sketch14.addGeometry(Part.LineSegment(Vector(0, 3, 0), Vector(12, 3, 0)), False)
sketch14.addGeometry(Part.LineSegment(Vector(12, 3, 0), Vector(15, 4, 0)), False)
sketch14.addGeometry(Part.LineSegment(Vector(15, 4, 0), Vector(0, 4, 0)), False)
sketch14.addGeometry(Part.LineSegment(Vector(0, 4, 0), Vector(0, 3, 0)), False)
sketch14.addConstraint(Sketcher.Constraint("Coincident", 0, 2, 1, 1))
sketch14.addConstraint(Sketcher.Constraint("Coincident", 1, 2, 2, 1))
sketch14.addConstraint(Sketcher.Constraint("Coincident", 2, 2, 3, 1))
sketch14.addConstraint(Sketcher.Constraint("Coincident", 3, 2, 0, 1))
sketch14.addConstraint(Sketcher.Constraint("Horizontal", 0))
sketch14.addConstraint(Sketcher.Constraint("Horizontal", 2))
sketch14.addConstraint(Sketcher.Constraint("Vertical", 3))
sketch14.addConstraint(Sketcher.Constraint("PointOnObject", 2, 2, -2))
sketch14.addConstraint(Sketcher.Constraint("DistanceX", 0, 1, 0, 2, Q("12 mm")))
sketch14.addConstraint(Sketcher.Constraint("DistanceX", 2, 2, 2, 1, Q("15 mm")))
sketch14.addConstraint(Sketcher.Constraint("DistanceY", 3, 2, 3, 1, Q("1 mm")))
sketch14.addConstraint(Sketcher.Constraint("DistanceY", -1, 1, 0, 2, Q("3 mm")))
revolution2 = doc.addObject("PartDesign::Revolution", "Revolution001")
body26.addObject(revolution2)
revolution2.Profile = sketch14
revolution2.ReferenceAxis = (sketch14, ["V_Axis"])
revolution2.Angle = 360
body27 = doc.addObject("PartDesign::Body", "Body026")

sketch15 = doc.addObject("Sketcher::SketchObject", "Sketch014")
body27.addObject(sketch15)
sketch15.AttachmentSupport = (doc.getObject("XY_Plane026"), [""])
sketch15.MapMode = "FlatFace"
sketch15.addGeometry(Part.Circle(Vector(0, 0, 0), Vector(0, 0, 1), 12), False)
sketch15.addConstraint(Sketcher.Constraint("Coincident", 0, 3, -1, 1))
sketch15.addConstraint(Sketcher.Constraint("Diameter", 0, Q("24 mm")))
pad13 = doc.addObject("PartDesign::Pad", "Pad012")
body27.addObject(pad13)
pad13.Profile = sketch15
pad13.Length = 5
doc.recompute()

boolean23 = doc.addObject("PartDesign::Boolean", "Boolean022")
body27.addObject(boolean23)
boolean23.Type = "Fuse"
boolean23.addObjects([body26])
body28 = doc.addObject("PartDesign::Body", "Body027")

sketch16 = doc.addObject("Sketcher::SketchObject", "Sketch015")
body28.addObject(sketch16)
sketch16.AttachmentSupport = (doc.getObject("XY_Plane027"), [""])
sketch16.MapMode = "FlatFace"
sketch16.addGeometry(Part.Circle(Vector(0, 0, 0), Vector(0, 0, 1), 15), False)
sketch16.addConstraint(Sketcher.Constraint("Coincident", 0, 3, -1, 1))
sketch16.addConstraint(Sketcher.Constraint("Diameter", 0, Q("30 mm")))
pad14 = doc.addObject("PartDesign::Pad", "Pad013")
body28.addObject(pad14)
pad14.Profile = sketch16
pad14.Length = 3.9
doc.recompute()

boolean24 = doc.addObject("PartDesign::Boolean", "Boolean023")
body28.addObject(boolean24)
boolean24.Type = "Cut"
boolean24.addObjects([body27])
body29 = doc.addObject("PartDesign::Body", "Body028")
doc.recompute()

body28.Placement = App.Placement(Vector(0, 0, 0), App.Rotation(Vector(0, 1, 0), 270))
boolean25 = doc.addObject("PartDesign::Boolean", "Boolean024")
body29.addObject(boolean25)
boolean25.Type = "Fuse"
boolean25.addObjects([body28])
body30 = doc.addObject("PartDesign::Body", "Body029")
doc.recompute()

body29.Placement = App.Placement(Vector(0, 1.75, 14), App.Rotation(Vector(0, 0, 1), 90))
boolean26 = doc.addObject("PartDesign::Boolean", "Boolean025")
body30.addObject(boolean26)
boolean26.Type = "Fuse"
boolean26.addObjects([body29])
body31 = doc.addObject("PartDesign::Body", "Body030")
body31.AllowCompound = True

sketch17 = doc.addObject("Sketcher::SketchObject", "Sketch016")
body31.addObject(sketch17)
sketch17.AttachmentSupport = (doc.getObject("XY_Plane030"), [""])
sketch17.MapMode = "FlatFace"
sketch17.AttachmentOffset = App.Placement(Vector(0, 0, -0.1), App.Rotation())
sketch17.addGeometry(Part.LineSegment(Vector(-12.3, 0, 0), Vector(-12.4, 0.7, 0)), False)
sketch17.addGeometry(Part.LineSegment(Vector(-12.4, 0.7, 0), Vector(-12.8, 1.2, 0)), False)
sketch17.addGeometry(Part.LineSegment(Vector(-12.8, 1.2, 0), Vector(-13.3, 1.6, 0)), False)
sketch17.addGeometry(Part.LineSegment(Vector(-13.3, 1.6, 0), Vector(-14, 1.7, 0)), False)
sketch17.addGeometry(Part.LineSegment(Vector(-14, 1.7, 0), Vector(-14.7, 1.6, 0)), False)
sketch17.addGeometry(Part.LineSegment(Vector(-14.7, 1.6, 0), Vector(-15.2, 1.2, 0)), False)
sketch17.addGeometry(Part.LineSegment(Vector(-15.2, 1.2, 0), Vector(-15.6, 0.7, 0)), False)
sketch17.addGeometry(Part.LineSegment(Vector(-15.6, 0.7, 0), Vector(-15.7, 0, 0)), False)
sketch17.addGeometry(Part.LineSegment(Vector(-15.7, 0, 0), Vector(-15.6, -0.7, 0)), False)
sketch17.addGeometry(Part.LineSegment(Vector(-15.6, -0.7, 0), Vector(-15.2, -1.2, 0)), False)
sketch17.addGeometry(Part.LineSegment(Vector(-15.2, -1.2, 0), Vector(-14.7, -1.6, 0)), False)
sketch17.addGeometry(Part.LineSegment(Vector(-14.7, -1.6, 0), Vector(-14, -1.7, 0)), False)
sketch17.addGeometry(Part.LineSegment(Vector(-14, -1.7, 0), Vector(-13.3, -1.6, 0)), False)
sketch17.addGeometry(Part.LineSegment(Vector(-13.3, -1.6, 0), Vector(-12.8, -1.2, 0)), False)
sketch17.addGeometry(Part.LineSegment(Vector(-12.8, -1.2, 0), Vector(-12.4, -0.7, 0)), False)
sketch17.addGeometry(Part.LineSegment(Vector(-12.4, -0.7, 0), Vector(-12.3, 0, 0)), False)
sketch17.addConstraint(Sketcher.Constraint("Coincident", 0, 2, 1, 1))
sketch17.addConstraint(Sketcher.Constraint("Coincident", 1, 2, 2, 1))
sketch17.addConstraint(Sketcher.Constraint("Coincident", 2, 2, 3, 1))
sketch17.addConstraint(Sketcher.Constraint("Coincident", 3, 2, 4, 1))
sketch17.addConstraint(Sketcher.Constraint("Coincident", 4, 2, 5, 1))
sketch17.addConstraint(Sketcher.Constraint("Coincident", 5, 2, 6, 1))
sketch17.addConstraint(Sketcher.Constraint("Coincident", 6, 2, 7, 1))
sketch17.addConstraint(Sketcher.Constraint("Coincident", 7, 2, 8, 1))
sketch17.addConstraint(Sketcher.Constraint("Coincident", 8, 2, 9, 1))
sketch17.addConstraint(Sketcher.Constraint("Coincident", 9, 2, 10, 1))
sketch17.addConstraint(Sketcher.Constraint("Coincident", 10, 2, 11, 1))
sketch17.addConstraint(Sketcher.Constraint("Coincident", 11, 2, 12, 1))
sketch17.addConstraint(Sketcher.Constraint("Coincident", 12, 2, 13, 1))
sketch17.addConstraint(Sketcher.Constraint("Coincident", 13, 2, 14, 1))
sketch17.addConstraint(Sketcher.Constraint("Coincident", 14, 2, 15, 1))
sketch17.addConstraint(Sketcher.Constraint("Coincident", 15, 2, 0, 1))
sketch17.addConstraint(Sketcher.Constraint("Symmetric", 6, 2, 8, 2, -1))
sketch17.addConstraint(Sketcher.Constraint("Symmetric", 5, 2, 9, 2, -1))
sketch17.addConstraint(Sketcher.Constraint("Symmetric", 4, 2, 10, 2, -1))
sketch17.addConstraint(Sketcher.Constraint("Symmetric", 3, 2, 11, 2, -1))
sketch17.addConstraint(Sketcher.Constraint("Symmetric", 2, 2, 12, 2, -1))
sketch17.addConstraint(Sketcher.Constraint("Symmetric", 1, 2, 13, 2, -1))
sketch17.addConstraint(Sketcher.Constraint("Symmetric", 0, 2, 14, 2, -1))
sketch17.addConstraint(Sketcher.Constraint("PointOnObject", 7, 2, -1))
sketch17.addConstraint(Sketcher.Constraint("PointOnObject", 15, 2, -1))
sketch17.addConstraint(Sketcher.Constraint("Perpendicular", 0, 4))
sketch17.addConstraint(Sketcher.Constraint("Perpendicular", 1, 5))
sketch17.addConstraint(Sketcher.Constraint("Perpendicular", 2, 6))
sketch17.addConstraint(Sketcher.Constraint("Perpendicular", 3, 7))
sketch17.addConstraint(Sketcher.Constraint("Perpendicular", 4, 8))
sketch17.addConstraint(Sketcher.Constraint("Perpendicular", 5, 9))
sketch17.addConstraint(Sketcher.Constraint("Horizontal", 2, 2, 4, 2))
sketch17.addConstraint(Sketcher.Constraint("Horizontal", 1, 2, 5, 2))
sketch17.addConstraint(Sketcher.Constraint("Horizontal", 0, 2, 6, 2))
sketch17.addConstraint(Sketcher.Constraint("Equal", 0, 1))
sketch17.addConstraint(Sketcher.Constraint("Equal", 1, 2))
sketch17.addConstraint(Sketcher.Constraint("Equal", 2, 3))
sketch17.addConstraint(Sketcher.Constraint("DistanceX", 3, 2, -1, 1, Q("14 mm")))
sketch17.addConstraint(Sketcher.Constraint("DistanceY", -1, 1, 3, 2, Q("1.7 mm")))
sketch17.addConstraint(Sketcher.Constraint("Angle", 0, Q("101.250015 deg")))
sketch17.addConstraint(Sketcher.Constraint("DistanceY", -1, 1, 0, 2, Q("0.650562 mm")))
pad15 = doc.addObject("PartDesign::Pad", "Pad014")
body31.addObject(pad15)
pad15.Profile = sketch17
pad15.Length = 10
doc.recompute()

boolean27 = doc.addObject("PartDesign::Boolean", "Boolean026")
body31.addObject(boolean27)
boolean27.Type = "Fuse"
boolean27.addObjects([body25])
doc.recompute()

boolean28 = doc.addObject("PartDesign::Boolean", "Boolean027")
body31.addObject(boolean28)
boolean28.Type = "Fuse"
boolean28.addObjects([body30])
body32 = doc.addObject("PartDesign::Body", "Body031")

sketch18 = doc.addObject("Sketcher::SketchObject", "Sketch017")
body32.addObject(sketch18)
sketch18.AttachmentSupport = (doc.getObject("XY_Plane031"), [""])
sketch18.MapMode = "FlatFace"
sketch18.addGeometry(Part.LineSegment(Vector(7, 0, 0), Vector(4, 6, 0)), False)
sketch18.addGeometry(Part.LineSegment(Vector(4, 6, 0), Vector(-4, 6, 0)), False)
sketch18.addGeometry(Part.LineSegment(Vector(-4, 6, 0), Vector(-7, 0, 0)), False)
sketch18.addGeometry(Part.LineSegment(Vector(-7, 0, 0), Vector(-4, -6, 0)), False)
sketch18.addGeometry(Part.LineSegment(Vector(-4, -6, 0), Vector(4, -6, 0)), False)
sketch18.addGeometry(Part.LineSegment(Vector(4, -6, 0), Vector(7, 0, 0)), False)
sketch18.addConstraint(Sketcher.Constraint("Coincident", 0, 2, 1, 1))
sketch18.addConstraint(Sketcher.Constraint("Coincident", 1, 2, 2, 1))
sketch18.addConstraint(Sketcher.Constraint("Coincident", 2, 2, 3, 1))
sketch18.addConstraint(Sketcher.Constraint("Coincident", 3, 2, 4, 1))
sketch18.addConstraint(Sketcher.Constraint("Coincident", 4, 2, 5, 1))
sketch18.addConstraint(Sketcher.Constraint("Coincident", 5, 2, 0, 1))
sketch18.addConstraint(Sketcher.Constraint("Horizontal", 1))
sketch18.addConstraint(Sketcher.Constraint("Horizontal", 4))
sketch18.addConstraint(Sketcher.Constraint("Symmetric", 0, 2, 3, 2, -1, 1))
sketch18.addConstraint(Sketcher.Constraint("Symmetric", 2, 2, 5, 2, -1, 1))
sketch18.addConstraint(Sketcher.Constraint("PointOnObject", 2, 2, -1))
sketch18.addConstraint(Sketcher.Constraint("Parallel", 2, 5))
sketch18.addConstraint(Sketcher.Constraint("Vertical", 1, 2, 3, 2))
sketch18.addConstraint(Sketcher.Constraint("DistanceX", 1, 2, 1, 1, Q("7 mm")))
sketch18.addConstraint(Sketcher.Constraint("Angle", 0, Q("119.999999 deg")))
sketch18.addConstraint(Sketcher.Constraint("Distance", 0, Q("7 mm")))
pad16 = doc.addObject("PartDesign::Pad", "Pad015")
body32.addObject(pad16)
pad16.Profile = sketch18
pad16.Length = 3
body33 = doc.addObject("PartDesign::Body", "Body032")
doc.recompute()

body32.Placement = App.Placement(Vector(-13, 0, 0), App.Rotation(Vector(0, 0, 1), 30))
boolean29 = doc.addObject("PartDesign::Boolean", "Boolean028")
body33.addObject(boolean29)
boolean29.Type = "Fuse"
boolean29.addObjects([body32])
body34 = doc.addObject("PartDesign::Body", "Body033")

sketch19 = doc.addObject("Sketcher::SketchObject", "Sketch018")
body34.addObject(sketch19)
sketch19.AttachmentSupport = (doc.getObject("XY_Plane033"), [""])
sketch19.MapMode = "FlatFace"
sketch19.addGeometry(Part.LineSegment(Vector(7, 0, 0), Vector(4, 6, 0)), False)
sketch19.addGeometry(Part.LineSegment(Vector(4, 6, 0), Vector(-4, 6, 0)), False)
sketch19.addGeometry(Part.LineSegment(Vector(-4, 6, 0), Vector(-7, 0, 0)), False)
sketch19.addGeometry(Part.LineSegment(Vector(-7, 0, 0), Vector(-4, -6, 0)), False)
sketch19.addGeometry(Part.LineSegment(Vector(-4, -6, 0), Vector(4, -6, 0)), False)
sketch19.addGeometry(Part.LineSegment(Vector(4, -6, 0), Vector(7, 0, 0)), False)
sketch19.addConstraint(Sketcher.Constraint("Coincident", 0, 2, 1, 1))
sketch19.addConstraint(Sketcher.Constraint("Coincident", 1, 2, 2, 1))
sketch19.addConstraint(Sketcher.Constraint("Coincident", 2, 2, 3, 1))
sketch19.addConstraint(Sketcher.Constraint("Coincident", 3, 2, 4, 1))
sketch19.addConstraint(Sketcher.Constraint("Coincident", 4, 2, 5, 1))
sketch19.addConstraint(Sketcher.Constraint("Coincident", 5, 2, 0, 1))
sketch19.addConstraint(Sketcher.Constraint("Horizontal", 1))
sketch19.addConstraint(Sketcher.Constraint("Horizontal", 4))
sketch19.addConstraint(Sketcher.Constraint("Symmetric", 0, 2, 3, 2, -1, 1))
sketch19.addConstraint(Sketcher.Constraint("Symmetric", 2, 2, 5, 2, -1, 1))
sketch19.addConstraint(Sketcher.Constraint("PointOnObject", 2, 2, -1))
sketch19.addConstraint(Sketcher.Constraint("Parallel", 2, 5))
sketch19.addConstraint(Sketcher.Constraint("Vertical", 1, 2, 3, 2))
sketch19.addConstraint(Sketcher.Constraint("DistanceX", 1, 2, 1, 1, Q("7 mm")))
sketch19.addConstraint(Sketcher.Constraint("Angle", 0, Q("119.999999 deg")))
sketch19.addConstraint(Sketcher.Constraint("Distance", 0, Q("7 mm")))
pad17 = doc.addObject("PartDesign::Pad", "Pad016")
body34.addObject(pad17)
pad17.Profile = sketch19
pad17.Length = 3
body35 = doc.addObject("PartDesign::Body", "Body034")
doc.recompute()

body34.Placement = App.Placement(Vector(13, 0, 0), App.Rotation(Vector(0, 0, 1), 30))
boolean30 = doc.addObject("PartDesign::Boolean", "Boolean029")
body35.addObject(boolean30)
boolean30.Type = "Fuse"
boolean30.addObjects([body34])
body36 = doc.addObject("PartDesign::Body", "Body035")

sketch20 = doc.addObject("Sketcher::SketchObject", "Sketch019")
body36.addObject(sketch20)
sketch20.AttachmentSupport = (doc.getObject("XY_Plane035"), [""])
sketch20.MapMode = "FlatFace"
sketch20.addGeometry(Part.LineSegment(Vector(-13, 7, 0), Vector(-13, -7, 0)), False)
sketch20.addGeometry(Part.LineSegment(Vector(-13, -7, 0), Vector(13, -7, 0)), False)
sketch20.addGeometry(Part.LineSegment(Vector(13, -7, 0), Vector(13, 7, 0)), False)
sketch20.addGeometry(Part.LineSegment(Vector(13, 7, 0), Vector(-13, 7, 0)), False)
sketch20.addConstraint(Sketcher.Constraint("Coincident", 0, 2, 1, 1))
sketch20.addConstraint(Sketcher.Constraint("Coincident", 1, 2, 2, 1))
sketch20.addConstraint(Sketcher.Constraint("Coincident", 2, 2, 3, 1))
sketch20.addConstraint(Sketcher.Constraint("Coincident", 3, 2, 0, 1))
sketch20.addConstraint(Sketcher.Constraint("Vertical", 0))
sketch20.addConstraint(Sketcher.Constraint("Horizontal", 1))
sketch20.addConstraint(Sketcher.Constraint("Vertical", 2))
sketch20.addConstraint(Sketcher.Constraint("Horizontal", 3))
sketch20.addConstraint(Sketcher.Constraint("Symmetric", 0, 2, 2, 2, -1, 1))
sketch20.addConstraint(Sketcher.Constraint("DistanceX", 1, 1, 1, 2, Q("26 mm")))
sketch20.addConstraint(Sketcher.Constraint("DistanceY", 0, 2, 0, 1, Q("14 mm")))
pad18 = doc.addObject("PartDesign::Pad", "Pad017")
body36.addObject(pad18)
pad18.Profile = sketch20
pad18.Length = 3
doc.recompute()

boolean31 = doc.addObject("PartDesign::Boolean", "Boolean030")
body36.addObject(boolean31)
boolean31.Type = "Fuse"
boolean31.addObjects([body33])
doc.recompute()

boolean32 = doc.addObject("PartDesign::Boolean", "Boolean031")
body36.addObject(boolean32)
boolean32.Type = "Fuse"
boolean32.addObjects([body35])
doc.recompute()

boolean33 = doc.addObject("PartDesign::Boolean", "Boolean032")
body36.addObject(boolean33)
boolean33.Type = "Cut"
boolean33.addObjects([body31])
doc.recompute()

boolean34 = doc.addObject("PartDesign::Boolean", "Boolean033")
body36.addObject(boolean34)
boolean34.Type = "Fuse"
boolean34.addObjects([body24])
mirroring.Visibility = False

doc.recompute()
